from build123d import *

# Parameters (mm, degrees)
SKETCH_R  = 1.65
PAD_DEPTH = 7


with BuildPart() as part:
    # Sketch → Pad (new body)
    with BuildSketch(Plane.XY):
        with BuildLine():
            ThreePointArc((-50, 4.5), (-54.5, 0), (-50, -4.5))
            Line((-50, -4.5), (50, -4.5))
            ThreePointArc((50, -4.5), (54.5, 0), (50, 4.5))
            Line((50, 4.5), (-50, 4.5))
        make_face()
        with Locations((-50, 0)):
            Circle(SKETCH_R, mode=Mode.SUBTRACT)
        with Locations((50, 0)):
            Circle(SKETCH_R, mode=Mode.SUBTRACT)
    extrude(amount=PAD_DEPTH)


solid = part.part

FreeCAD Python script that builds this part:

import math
import FreeCAD as App
import Part
import Sketcher
from FreeCAD import Vector

doc = App.newDocument("Part")
body = doc.addObject("PartDesign::Body", "Body")

# Sketch on XY plane
sketch1 = body.newObject("Sketcher::SketchObject", "Sketch")
sketch1.AttachmentSupport = (doc.getObject("XY_Plane"), [""])
sketch1.MapMode = "FlatFace"
sketch1.addGeometry([
    Part.ArcOfCircle(Part.Circle(Vector(-50, 0, 0), Vector(0, 0, 1), 4.5), math.radians(90), math.radians(270)),  # 0
    Part.LineSegment(Vector(-50, -4.5, 0), Vector(50, -4.5, 0)),  # 1
    Part.ArcOfCircle(Part.Circle(Vector(50, 0, 0), Vector(0, 0, 1), 4.5), math.radians(-90), math.radians(90)),  # 2
    Part.LineSegment(Vector(50, 4.5, 0), Vector(-50, 4.5, 0)),  # 3
    Part.Circle(Vector(-50, 0, 0), Vector(0, 0, 1), 1.6),  # 4
    Part.Circle(Vector(50, 0, 0), Vector(0, 0, 1), 1.6),  # 5
], False)
sketch1.addConstraint([
    Sketcher.Constraint("Tangent", 0, 2, 1, 1),
    Sketcher.Constraint("Tangent", 1, 2, 2, 1),
    Sketcher.Constraint("Tangent", 2, 2, 3, 1),
    Sketcher.Constraint("Tangent", 3, 2, 0, 1),
    Sketcher.Constraint("Horizontal", 1),
    Sketcher.Constraint("Horizontal", 3),
    Sketcher.Constraint("Coincident", 4, 3, 0, 3),
    Sketcher.Constraint("Coincident", 5, 3, 2, 3),
    Sketcher.Constraint("Equal", 4, 5),
    Sketcher.Constraint("Symmetric", 0, 3, 2, 3, -1, 1),
    Sketcher.Constraint("Diameter", 4, 3.3),
    Sketcher.Constraint("Radius", 0, 4.5),
    Sketcher.Constraint("DistanceX", 1, 1, 1, 2, 100.0),
])
pad1 = body.newObject("PartDesign::Pad", "Pad")
pad1.Profile = sketch1
pad1.Length = 7

doc.recompute()
